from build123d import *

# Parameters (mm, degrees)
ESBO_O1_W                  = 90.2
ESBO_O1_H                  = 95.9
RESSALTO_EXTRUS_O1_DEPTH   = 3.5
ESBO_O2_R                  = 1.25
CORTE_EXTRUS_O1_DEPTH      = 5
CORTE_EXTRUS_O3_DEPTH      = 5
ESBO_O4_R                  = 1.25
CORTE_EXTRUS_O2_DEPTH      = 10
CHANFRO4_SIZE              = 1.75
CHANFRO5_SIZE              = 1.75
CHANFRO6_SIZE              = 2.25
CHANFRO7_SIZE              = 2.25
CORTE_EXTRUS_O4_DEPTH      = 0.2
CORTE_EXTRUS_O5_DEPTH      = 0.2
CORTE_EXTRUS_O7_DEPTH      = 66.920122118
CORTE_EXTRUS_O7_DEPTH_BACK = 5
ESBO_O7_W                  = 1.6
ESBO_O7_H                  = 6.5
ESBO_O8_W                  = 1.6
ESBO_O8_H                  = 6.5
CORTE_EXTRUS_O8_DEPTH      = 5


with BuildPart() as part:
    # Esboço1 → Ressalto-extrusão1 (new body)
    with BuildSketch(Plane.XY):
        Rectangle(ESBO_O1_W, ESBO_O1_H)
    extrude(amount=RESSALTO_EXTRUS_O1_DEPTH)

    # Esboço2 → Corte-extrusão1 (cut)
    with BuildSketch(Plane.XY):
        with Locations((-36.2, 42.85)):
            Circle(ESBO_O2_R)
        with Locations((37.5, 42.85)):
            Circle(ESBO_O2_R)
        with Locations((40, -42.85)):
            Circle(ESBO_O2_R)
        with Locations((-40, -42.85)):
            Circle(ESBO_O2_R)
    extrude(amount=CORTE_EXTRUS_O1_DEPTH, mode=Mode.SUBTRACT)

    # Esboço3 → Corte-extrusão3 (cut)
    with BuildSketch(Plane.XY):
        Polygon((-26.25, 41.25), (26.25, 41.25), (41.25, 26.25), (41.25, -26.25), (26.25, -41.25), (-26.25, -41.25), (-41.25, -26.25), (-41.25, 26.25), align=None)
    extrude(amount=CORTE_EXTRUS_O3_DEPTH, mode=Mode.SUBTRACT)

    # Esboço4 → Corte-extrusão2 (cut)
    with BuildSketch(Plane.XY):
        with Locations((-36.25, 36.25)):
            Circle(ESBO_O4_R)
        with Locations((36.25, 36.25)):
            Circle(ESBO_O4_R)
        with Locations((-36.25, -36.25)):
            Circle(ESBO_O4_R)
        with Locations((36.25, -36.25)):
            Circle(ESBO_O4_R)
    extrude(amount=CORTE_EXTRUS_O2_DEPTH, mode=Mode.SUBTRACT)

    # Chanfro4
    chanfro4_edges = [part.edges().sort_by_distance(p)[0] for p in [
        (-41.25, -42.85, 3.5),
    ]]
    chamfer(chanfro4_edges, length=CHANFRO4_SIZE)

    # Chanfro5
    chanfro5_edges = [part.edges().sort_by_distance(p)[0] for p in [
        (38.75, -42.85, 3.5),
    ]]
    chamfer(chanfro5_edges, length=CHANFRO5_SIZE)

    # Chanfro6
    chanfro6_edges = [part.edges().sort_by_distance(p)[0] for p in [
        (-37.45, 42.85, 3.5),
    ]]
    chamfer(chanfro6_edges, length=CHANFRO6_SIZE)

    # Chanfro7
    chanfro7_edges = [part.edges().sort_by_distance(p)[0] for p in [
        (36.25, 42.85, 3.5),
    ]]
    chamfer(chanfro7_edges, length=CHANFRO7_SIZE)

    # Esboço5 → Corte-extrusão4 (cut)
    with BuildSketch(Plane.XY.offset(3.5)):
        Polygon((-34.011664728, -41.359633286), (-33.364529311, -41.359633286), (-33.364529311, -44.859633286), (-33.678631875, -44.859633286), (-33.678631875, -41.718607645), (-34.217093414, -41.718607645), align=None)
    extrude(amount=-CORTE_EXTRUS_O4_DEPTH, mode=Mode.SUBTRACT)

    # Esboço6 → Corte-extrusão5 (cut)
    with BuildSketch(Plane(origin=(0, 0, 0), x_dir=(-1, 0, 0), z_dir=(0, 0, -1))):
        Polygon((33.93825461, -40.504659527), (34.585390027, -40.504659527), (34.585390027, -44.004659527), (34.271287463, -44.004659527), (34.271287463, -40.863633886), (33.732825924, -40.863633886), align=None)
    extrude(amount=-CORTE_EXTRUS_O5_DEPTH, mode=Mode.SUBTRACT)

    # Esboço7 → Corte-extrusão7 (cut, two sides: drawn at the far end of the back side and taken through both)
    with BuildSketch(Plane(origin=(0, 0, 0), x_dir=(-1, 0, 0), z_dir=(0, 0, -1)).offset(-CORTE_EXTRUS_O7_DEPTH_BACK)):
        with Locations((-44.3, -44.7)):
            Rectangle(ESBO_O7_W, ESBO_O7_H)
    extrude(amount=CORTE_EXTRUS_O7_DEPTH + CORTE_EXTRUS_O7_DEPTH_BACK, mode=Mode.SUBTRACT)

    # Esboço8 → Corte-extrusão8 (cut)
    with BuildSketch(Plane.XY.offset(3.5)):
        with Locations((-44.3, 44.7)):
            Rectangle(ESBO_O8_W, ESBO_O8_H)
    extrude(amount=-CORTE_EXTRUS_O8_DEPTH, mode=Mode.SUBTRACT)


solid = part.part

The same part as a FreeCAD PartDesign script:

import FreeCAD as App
import Part
import Sketcher

V = App.Vector


def edges_at(feature, points):
    """Names of the edges that pass closest to the given points."""
    edges = feature.Shape.Edges
    near = lambda p: min(range(len(edges)), key=lambda i: edges[i].distToShape(Part.Vertex(*p))[0])
    return sorted({f"Edge{near(p) + 1}" for p in points})

doc = App.newDocument("Part")
body = doc.addObject("PartDesign::Body", "Body")

# Sketch on XY plane
sketch1 = body.newObject("Sketcher::SketchObject", "Sketch")
sketch1.AttachmentSupport = (doc.getObject("XY_Plane"), [""])
sketch1.MapMode = "FlatFace"
sketch1.addGeometry(Part.LineSegment(V(-45.1, 47.95, 0), V(-45.1, -47.95, 0)), False)
sketch1.addGeometry(Part.LineSegment(V(-45.1, -47.95, 0), V(45.1, -47.95, 0)), False)
sketch1.addGeometry(Part.LineSegment(V(45.1, -47.95, 0), V(45.1, 47.95, 0)), False)
sketch1.addGeometry(Part.LineSegment(V(45.1, 47.95, 0), V(-45.1, 47.95, 0)), False)
sketch1.addConstraint(Sketcher.Constraint("Coincident", 0, 2, 1, 1))
sketch1.addConstraint(Sketcher.Constraint("Coincident", 1, 2, 2, 1))
sketch1.addConstraint(Sketcher.Constraint("Coincident", 2, 2, 3, 1))
sketch1.addConstraint(Sketcher.Constraint("Coincident", 3, 2, 0, 1))
sketch1.addConstraint(Sketcher.Constraint("Vertical", 0))
sketch1.addConstraint(Sketcher.Constraint("Horizontal", 1))
sketch1.addConstraint(Sketcher.Constraint("Vertical", 2))
sketch1.addConstraint(Sketcher.Constraint("Horizontal", 3))
sketch1.addConstraint(Sketcher.Constraint("Symmetric", 0, 2, 2, 2, -1, 1))
sketch1.addConstraint(Sketcher.Constraint("DistanceX", 1, 1, 1, 2, 90.2))
sketch1.addConstraint(Sketcher.Constraint("DistanceY", 0, 2, 0, 1, 95.9))
pad1 = body.newObject("PartDesign::Pad", "Pad")
pad1.Profile = sketch1
pad1.Length = 3.5

# Sketch on XY plane
sketch2 = body.newObject("Sketcher::SketchObject", "Sketch001")
sketch2.AttachmentSupport = (doc.getObject("XY_Plane"), [""])
sketch2.MapMode = "FlatFace"
sketch2.addGeometry(Part.Circle(V(-36.2, 42.85, 0), V(0, 0, 1), 1.25), False)
sketch2.addGeometry(Part.Circle(V(37.5, 42.85, 0), V(0, 0, 1), 1.25), False)
sketch2.addGeometry(Part.Circle(V(40, -42.85, 0), V(0, 0, 1), 1.25), False)
sketch2.addGeometry(Part.Circle(V(-40, -42.85, 0), V(0, 0, 1), 1.25), False)
sketch2.addConstraint(Sketcher.Constraint("Equal", 0, 1))
sketch2.addConstraint(Sketcher.Constraint("Equal", 1, 2))
sketch2.addConstraint(Sketcher.Constraint("Equal", 2, 3))
sketch2.addConstraint(Sketcher.Constraint("Symmetric", 2, 3, 3, 3, -2))
sketch2.addConstraint(Sketcher.Constraint("Horizontal", 0, 3, 1, 3))
sketch2.addConstraint(Sketcher.Constraint("Diameter", 0, 2.5))
sketch2.addConstraint(Sketcher.Constraint("DistanceX", -1, 1, 2, 3, 40.0))
sketch2.addConstraint(Sketcher.Constraint("DistanceX", 0, 3, -1, 1, 36.2))
sketch2.addConstraint(Sketcher.Constraint("DistanceX", -1, 1, 1, 3, 37.5))
sketch2.addConstraint(Sketcher.Constraint("DistanceY", 2, 3, 1, 3, 85.7))
sketch2.addConstraint(Sketcher.Constraint("DistanceY", -1, 1, 0, 3, 42.85))
pocket1 = body.newObject("PartDesign::Pocket", "Pocket")
pocket1.Profile = sketch2
pocket1.Length = 5
pocket1.Reversed = True

# Sketch on XY plane
sketch3 = body.newObject("Sketcher::SketchObject", "Sketch002")
sketch3.AttachmentSupport = (doc.getObject("XY_Plane"), [""])
sketch3.MapMode = "FlatFace"
sketch3.addGeometry(Part.LineSegment(V(26.25, 41.25, 0), V(-26.25, 41.25, 0)), False)
sketch3.addGeometry(Part.LineSegment(V(-26.25, 41.25, 0), V(-41.25, 26.25, 0)), False)
sketch3.addGeometry(Part.LineSegment(V(-41.25, 26.25, 0), V(-41.25, -26.25, 0)), False)
sketch3.addGeometry(Part.LineSegment(V(-41.25, -26.25, 0), V(-26.25, -41.25, 0)), False)
sketch3.addGeometry(Part.LineSegment(V(-26.25, -41.25, 0), V(26.25, -41.25, 0)), False)
sketch3.addGeometry(Part.LineSegment(V(26.25, -41.25, 0), V(41.25, -26.25, 0)), False)
sketch3.addGeometry(Part.LineSegment(V(41.25, -26.25, 0), V(41.25, 26.25, 0)), False)
sketch3.addGeometry(Part.LineSegment(V(41.25, 26.25, 0), V(26.25, 41.25, 0)), False)
sketch3.addConstraint(Sketcher.Constraint("Coincident", 0, 2, 1, 1))
sketch3.addConstraint(Sketcher.Constraint("Coincident", 1, 2, 2, 1))
sketch3.addConstraint(Sketcher.Constraint("Coincident", 2, 2, 3, 1))
sketch3.addConstraint(Sketcher.Constraint("Coincident", 3, 2, 4, 1))
sketch3.addConstraint(Sketcher.Constraint("Coincident", 4, 2, 5, 1))
sketch3.addConstraint(Sketcher.Constraint("Coincident", 5, 2, 6, 1))
sketch3.addConstraint(Sketcher.Constraint("Coincident", 6, 2, 7, 1))
sketch3.addConstraint(Sketcher.Constraint("Coincident", 7, 2, 0, 1))
sketch3.addConstraint(Sketcher.Constraint("Horizontal", 0))
sketch3.addConstraint(Sketcher.Constraint("Vertical", 2))
sketch3.addConstraint(Sketcher.Constraint("Horizontal", 4))
sketch3.addConstraint(Sketcher.Constraint("Vertical", 6))
sketch3.addConstraint(Sketcher.Constraint("Symmetric", 0, 2, 4, 2, -1, 1))
sketch3.addConstraint(Sketcher.Constraint("Symmetric", 1, 2, 5, 2, -1, 1))
sketch3.addConstraint(Sketcher.Constraint("Perpendicular", 1, 3))
sketch3.addConstraint(Sketcher.Constraint("Perpendicular", 5, 7))
sketch3.addConstraint(Sketcher.Constraint("Horizontal", 2, 2, 5, 2))
sketch3.addConstraint(Sketcher.Constraint("Horizontal", 1, 2, 6, 2))
sketch3.addConstraint(Sketcher.Constraint("Vertical", 0, 2, 3, 2))
sketch3.addConstraint(Sketcher.Constraint("Equal", 4, 2))
sketch3.addConstraint(Sketcher.Constraint("DistanceX", 0, 2, 0, 1, 52.5))
sketch3.addConstraint(Sketcher.Constraint("DistanceX", 1, 2, 0, 2, 15.0))
pocket2 = body.newObject("PartDesign::Pocket", "Pocket001")
pocket2.Profile = sketch3
pocket2.Length = 5
pocket2.Reversed = True

# Sketch on XY plane
sketch4 = body.newObject("Sketcher::SketchObject", "Sketch003")
sketch4.AttachmentSupport = (doc.getObject("XY_Plane"), [""])
sketch4.MapMode = "FlatFace"
sketch4.addGeometry(Part.Circle(V(-36.25, 36.25, 0), V(0, 0, 1), 1.25), False)
sketch4.addGeometry(Part.Circle(V(36.25, 36.25, 0), V(0, 0, 1), 1.25), False)
sketch4.addGeometry(Part.Circle(V(-36.25, -36.25, 0), V(0, 0, 1), 1.25), False)
sketch4.addGeometry(Part.Circle(V(36.25, -36.25, 0), V(0, 0, 1), 1.25), False)
sketch4.addConstraint(Sketcher.Constraint("Equal", 0, 1))
sketch4.addConstraint(Sketcher.Constraint("Equal", 1, 2))
sketch4.addConstraint(Sketcher.Constraint("Equal", 2, 3))
sketch4.addConstraint(Sketcher.Constraint("Symmetric", 1, 3, 2, 3, -1, 1))
sketch4.addConstraint(Sketcher.Constraint("Symmetric", 0, 3, 3, 3, -1, 1))
sketch4.addConstraint(Sketcher.Constraint("Symmetric", 0, 3, 1, 3, -2))
sketch4.addConstraint(Sketcher.Constraint("Diameter", 0, 2.5))
sketch4.addConstraint(Sketcher.Constraint("DistanceX", 0, 3, 1, 3, 72.5))
sketch4.addConstraint(Sketcher.Constraint("DistanceY", 2, 3, 0, 3, 72.5))
pocket3 = body.newObject("PartDesign::Pocket", "Pocket002")
pocket3.Profile = sketch4
pocket3.Length = 10
pocket3.Reversed = True
doc.recompute()

chamfer = body.newObject("PartDesign::Chamfer", "Chamfer")
chamfer.Base = (pocket3, edges_at(pocket3, [(-41.25, -42.85, 3.5)]))
chamfer.Size = 1.75
doc.recompute()

chamfer2 = body.newObject("PartDesign::Chamfer", "Chamfer001")
chamfer2.Base = (chamfer, edges_at(chamfer, [(38.75, -42.85, 3.5)]))
chamfer2.Size = 1.75
doc.recompute()

chamfer3 = body.newObject("PartDesign::Chamfer", "Chamfer002")
chamfer3.Base = (chamfer2, edges_at(chamfer2, [(-37.45, 42.85, 3.5)]))
chamfer3.Size = 2.25
doc.recompute()

chamfer4 = body.newObject("PartDesign::Chamfer", "Chamfer003")
chamfer4.Base = (chamfer3, edges_at(chamfer3, [(36.25, 42.85, 3.5)]))
chamfer4.Size = 2.25

# Sketch on XY plane
sketch5 = body.newObject("Sketcher::SketchObject", "Sketch004")
sketch5.AttachmentSupport = (doc.getObject("XY_Plane"), [""])
sketch5.MapMode = "FlatFace"
sketch5.AttachmentOffset = App.Placement(V(0, 0, 3.5), App.Rotation())
sketch5.addGeometry(Part.LineSegment(V(-33.364529, -41.359633, 0), V(-34.011665, -41.359633, 0)), False)
sketch5.addGeometry(Part.LineSegment(V(-34.011665, -41.359633, 0), V(-34.217093, -41.718608, 0)), False)
sketch5.addGeometry(Part.LineSegment(V(-34.217093, -41.718608, 0), V(-33.678632, -41.718608, 0)), False)
sketch5.addGeometry(Part.LineSegment(V(-33.678632, -41.718608, 0), V(-33.678632, -44.859633, 0)), False)
sketch5.addGeometry(Part.LineSegment(V(-33.678632, -44.859633, 0), V(-33.364529, -44.859633, 0)), False)
sketch5.addGeometry(Part.LineSegment(V(-33.364529, -44.859633, 0), V(-33.364529, -41.359633, 0)), False)
sketch5.addConstraint(Sketcher.Constraint("Coincident", 0, 2, 1, 1))
sketch5.addConstraint(Sketcher.Constraint("Coincident", 1, 2, 2, 1))
sketch5.addConstraint(Sketcher.Constraint("Coincident", 2, 2, 3, 1))
sketch5.addConstraint(Sketcher.Constraint("Coincident", 3, 2, 4, 1))
sketch5.addConstraint(Sketcher.Constraint("Coincident", 4, 2, 5, 1))
sketch5.addConstraint(Sketcher.Constraint("Coincident", 5, 2, 0, 1))
sketch5.addConstraint(Sketcher.Constraint("Horizontal", 0))
sketch5.addConstraint(Sketcher.Constraint("Horizontal", 2))
sketch5.addConstraint(Sketcher.Constraint("Vertical", 3))
sketch5.addConstraint(Sketcher.Constraint("Horizontal", 4))
sketch5.addConstraint(Sketcher.Constraint("Vertical", 5))
sketch5.addConstraint(Sketcher.Constraint("DistanceY", 5, 1, 5, 2, 3.5))
sketch5.addConstraint(Sketcher.Constraint("Distance", 1, 0.413598))
sketch5.addConstraint(Sketcher.Constraint("DistanceX", 2, 1, 2, 2, 0.538462))
sketch5.addConstraint(Sketcher.Constraint("DistanceX", 0, 2, 0, 1, 0.647135))
sketch5.addConstraint(Sketcher.Constraint("DistanceX", 4, 1, 4, 2, 0.314103))
sketch5.addConstraint(Sketcher.Constraint("DistanceX", 2, 2, -1, 1, 33.678632))
sketch5.addConstraint(Sketcher.Constraint("DistanceY", 0, 2, -1, 1, 41.359633))
pocket4 = body.newObject("PartDesign::Pocket", "Pocket003")
pocket4.Profile = sketch5
pocket4.Length = 0.2

# Sketch on XY plane
sketch6 = body.newObject("Sketcher::SketchObject", "Sketch005")
sketch6.AttachmentSupport = (doc.getObject("XY_Plane"), [""])
sketch6.MapMode = "FlatFace"
sketch6.addGeometry(Part.LineSegment(V(-34.58539, -40.50466, 0), V(-33.938255, -40.50466, 0)), False)
sketch6.addGeometry(Part.LineSegment(V(-33.938255, -40.50466, 0), V(-33.732826, -40.863634, 0)), False)
sketch6.addGeometry(Part.LineSegment(V(-33.732826, -40.863634, 0), V(-34.271287, -40.863634, 0)), False)
sketch6.addGeometry(Part.LineSegment(V(-34.271287, -40.863634, 0), V(-34.271287, -44.00466, 0)), False)
sketch6.addGeometry(Part.LineSegment(V(-34.271287, -44.00466, 0), V(-34.58539, -44.00466, 0)), False)
sketch6.addGeometry(Part.LineSegment(V(-34.58539, -44.00466, 0), V(-34.58539, -40.50466, 0)), False)
sketch6.addConstraint(Sketcher.Constraint("Coincident", 0, 2, 1, 1))
sketch6.addConstraint(Sketcher.Constraint("Coincident", 1, 2, 2, 1))
sketch6.addConstraint(Sketcher.Constraint("Coincident", 2, 2, 3, 1))
sketch6.addConstraint(Sketcher.Constraint("Coincident", 3, 2, 4, 1))
sketch6.addConstraint(Sketcher.Constraint("Coincident", 4, 2, 5, 1))
sketch6.addConstraint(Sketcher.Constraint("Coincident", 5, 2, 0, 1))
sketch6.addConstraint(Sketcher.Constraint("Horizontal", 0))
sketch6.addConstraint(Sketcher.Constraint("Horizontal", 2))
sketch6.addConstraint(Sketcher.Constraint("Vertical", 3))
sketch6.addConstraint(Sketcher.Constraint("Horizontal", 4))
sketch6.addConstraint(Sketcher.Constraint("Vertical", 5))
sketch6.addConstraint(Sketcher.Constraint("DistanceY", 5, 1, 5, 2, 3.5))
sketch6.addConstraint(Sketcher.Constraint("Distance", 1, 0.413598))
sketch6.addConstraint(Sketcher.Constraint("DistanceX", 2, 2, 2, 1, 0.538462))
sketch6.addConstraint(Sketcher.Constraint("DistanceX", 0, 1, 0, 2, 0.647135))
sketch6.addConstraint(Sketcher.Constraint("DistanceX", 4, 2, 4, 1, 0.314103))
sketch6.addConstraint(Sketcher.Constraint("DistanceY", 0, 2, -1, 1, 40.50466))
sketch6.addConstraint(Sketcher.Constraint("DistanceX", 4, 2, -1, 1, 34.58539))
pocket5 = body.newObject("PartDesign::Pocket", "Pocket004")
pocket5.Profile = sketch6
pocket5.Length = 0.2
pocket5.Reversed = True

# Sketch on XY plane
sketch7 = body.newObject("Sketcher::SketchObject", "Sketch006")
sketch7.AttachmentSupport = (doc.getObject("XY_Plane"), [""])
sketch7.MapMode = "FlatFace"
sketch7.addGeometry(Part.LineSegment(V(45.1, -41.45, 0), V(45.1, -47.95, 0)), False)
sketch7.addGeometry(Part.LineSegment(V(45.1, -47.95, 0), V(43.5, -47.95, 0)), False)
sketch7.addGeometry(Part.LineSegment(V(43.5, -47.95, 0), V(43.5, -41.45, 0)), False)
sketch7.addGeometry(Part.LineSegment(V(43.5, -41.45, 0), V(45.1, -41.45, 0)), False)
sketch7.addConstraint(Sketcher.Constraint("Coincident", 0, 2, 1, 1))
sketch7.addConstraint(Sketcher.Constraint("Coincident", 1, 2, 2, 1))
sketch7.addConstraint(Sketcher.Constraint("Coincident", 2, 2, 3, 1))
sketch7.addConstraint(Sketcher.Constraint("Coincident", 3, 2, 0, 1))
sketch7.addConstraint(Sketcher.Constraint("Vertical", 0))
sketch7.addConstraint(Sketcher.Constraint("Horizontal", 1))
sketch7.addConstraint(Sketcher.Constraint("Vertical", 2))
sketch7.addConstraint(Sketcher.Constraint("Horizontal", 3))
sketch7.addConstraint(Sketcher.Constraint("DistanceX", 1, 2, 1, 1, 1.6))
sketch7.addConstraint(Sketcher.Constraint("DistanceY", 0, 2, 0, 1, 6.5))
sketch7.addConstraint(Sketcher.Constraint("DistanceX", -1, 1, 0, 2, 45.1))
sketch7.addConstraint(Sketcher.Constraint("DistanceY", 0, 2, -1, 1, 47.95))
pocket6 = body.newObject("PartDesign::Pocket", "Pocket005")
pocket6.Profile = sketch7
pocket6.Type = "ThroughAll"
pocket6.Midplane = True

# Sketch on XY plane
sketch8 = body.newObject("Sketcher::SketchObject", "Sketch007")
sketch8.AttachmentSupport = (doc.getObject("XY_Plane"), [""])
sketch8.MapMode = "FlatFace"
sketch8.AttachmentOffset = App.Placement(V(0, 0, 3.5), App.Rotation())
sketch8.addGeometry(Part.LineSegment(V(-45.1, 47.95, 0), V(-45.1, 41.45, 0)), False)
sketch8.addGeometry(Part.LineSegment(V(-45.1, 41.45, 0), V(-43.5, 41.45, 0)), False)
sketch8.addGeometry(Part.LineSegment(V(-43.5, 41.45, 0), V(-43.5, 47.95, 0)), False)
sketch8.addGeometry(Part.LineSegment(V(-43.5, 47.95, 0), V(-45.1, 47.95, 0)), False)
sketch8.addConstraint(Sketcher.Constraint("Coincident", 0, 2, 1, 1))
sketch8.addConstraint(Sketcher.Constraint("Coincident", 1, 2, 2, 1))
sketch8.addConstraint(Sketcher.Constraint("Coincident", 2, 2, 3, 1))
sketch8.addConstraint(Sketcher.Constraint("Coincident", 3, 2, 0, 1))
sketch8.addConstraint(Sketcher.Constraint("Vertical", 0))
sketch8.addConstraint(Sketcher.Constraint("Horizontal", 1))
sketch8.addConstraint(Sketcher.Constraint("Vertical", 2))
sketch8.addConstraint(Sketcher.Constraint("Horizontal", 3))
sketch8.addConstraint(Sketcher.Constraint("DistanceX", 1, 1, 1, 2, 1.6))
sketch8.addConstraint(Sketcher.Constraint("DistanceY", 0, 2, 0, 1, 6.5))
sketch8.addConstraint(Sketcher.Constraint("DistanceX", 0, 2, -1, 1, 45.1))
sketch8.addConstraint(Sketcher.Constraint("DistanceY", -1, 1, 0, 2, 41.45))
pocket7 = body.newObject("PartDesign::Pocket", "Pocket006")
pocket7.Profile = sketch8
pocket7.Length = 5

doc.recompute()
